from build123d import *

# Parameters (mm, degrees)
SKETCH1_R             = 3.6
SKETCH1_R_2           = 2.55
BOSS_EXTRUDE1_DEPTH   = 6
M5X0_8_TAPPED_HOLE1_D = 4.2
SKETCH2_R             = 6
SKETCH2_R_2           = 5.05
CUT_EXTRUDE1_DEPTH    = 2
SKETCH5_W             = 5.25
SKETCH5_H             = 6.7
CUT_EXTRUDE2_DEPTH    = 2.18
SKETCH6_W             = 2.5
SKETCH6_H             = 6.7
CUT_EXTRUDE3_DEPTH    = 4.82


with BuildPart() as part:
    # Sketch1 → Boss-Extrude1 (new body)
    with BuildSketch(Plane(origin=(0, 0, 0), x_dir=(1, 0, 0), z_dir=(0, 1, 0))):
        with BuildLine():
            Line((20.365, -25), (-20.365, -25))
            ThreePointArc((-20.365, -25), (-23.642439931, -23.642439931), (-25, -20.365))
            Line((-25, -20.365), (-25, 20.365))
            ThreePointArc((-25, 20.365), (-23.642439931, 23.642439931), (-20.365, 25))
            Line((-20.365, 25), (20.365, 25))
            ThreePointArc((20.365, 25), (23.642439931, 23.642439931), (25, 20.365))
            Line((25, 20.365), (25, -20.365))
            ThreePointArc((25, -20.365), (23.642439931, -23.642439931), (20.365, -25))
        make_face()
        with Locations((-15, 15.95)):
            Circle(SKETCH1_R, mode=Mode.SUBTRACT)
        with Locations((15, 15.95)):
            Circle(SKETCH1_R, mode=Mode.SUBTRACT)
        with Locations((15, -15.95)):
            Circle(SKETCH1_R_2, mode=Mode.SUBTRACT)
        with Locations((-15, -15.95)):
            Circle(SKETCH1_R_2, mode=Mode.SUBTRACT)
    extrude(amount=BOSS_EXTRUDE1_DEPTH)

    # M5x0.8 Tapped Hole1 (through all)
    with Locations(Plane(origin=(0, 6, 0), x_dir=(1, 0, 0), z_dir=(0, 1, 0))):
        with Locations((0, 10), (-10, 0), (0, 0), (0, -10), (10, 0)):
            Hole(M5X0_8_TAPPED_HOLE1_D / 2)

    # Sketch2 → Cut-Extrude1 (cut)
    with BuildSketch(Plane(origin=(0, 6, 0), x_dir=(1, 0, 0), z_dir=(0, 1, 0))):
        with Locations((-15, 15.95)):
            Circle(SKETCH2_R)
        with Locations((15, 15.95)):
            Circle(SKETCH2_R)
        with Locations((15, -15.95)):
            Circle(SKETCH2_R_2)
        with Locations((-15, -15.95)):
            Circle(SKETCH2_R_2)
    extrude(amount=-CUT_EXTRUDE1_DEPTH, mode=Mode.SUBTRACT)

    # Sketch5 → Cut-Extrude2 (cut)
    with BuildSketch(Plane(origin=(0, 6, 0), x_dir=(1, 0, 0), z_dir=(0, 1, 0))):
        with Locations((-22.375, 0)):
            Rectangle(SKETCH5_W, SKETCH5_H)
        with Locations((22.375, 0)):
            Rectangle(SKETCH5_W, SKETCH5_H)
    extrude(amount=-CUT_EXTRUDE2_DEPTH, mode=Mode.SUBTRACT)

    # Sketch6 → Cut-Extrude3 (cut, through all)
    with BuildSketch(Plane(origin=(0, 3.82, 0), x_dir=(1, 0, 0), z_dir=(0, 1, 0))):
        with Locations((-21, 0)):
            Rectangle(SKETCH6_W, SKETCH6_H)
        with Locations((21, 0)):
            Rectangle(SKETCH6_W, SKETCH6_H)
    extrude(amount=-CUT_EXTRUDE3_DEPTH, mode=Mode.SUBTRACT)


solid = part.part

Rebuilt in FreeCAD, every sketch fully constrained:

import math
import FreeCAD as App
import Part
import Sketcher
Q = App.Units.Quantity

doc = App.newDocument("Part")
body = doc.addObject("PartDesign::Body", "Body")

sketch1 = body.newObject("Sketcher::SketchObject", "Sketch")
sketch1.AttachmentSupport = (doc.getObject("XZ_Plane"), [""])
sketch1.MapMode = "FlatFace"
sketch1.addGeometry([
    Part.LineSegment(App.Vector(-20.4, 25, 0), App.Vector(20.4, 25, 0)),
    Part.ArcOfCircle(Part.Circle(App.Vector(20.4, 20.4, 0), App.Vector(0, 0, 1), 4.6), math.radians(0), math.radians(90)),
    Part.LineSegment(App.Vector(25, 20.4, 0), App.Vector(25, -20.4, 0)),
    Part.ArcOfCircle(Part.Circle(App.Vector(20.4, -20.4, 0), App.Vector(0, 0, 1), 4.6), math.radians(-90), math.radians(0)),
    Part.LineSegment(App.Vector(20.4, -25, 0), App.Vector(-20.4, -25, 0)),
    Part.ArcOfCircle(Part.Circle(App.Vector(-20.4, -20.4, 0), App.Vector(0, 0, 1), 4.6), math.radians(180), math.radians(270)),
    Part.LineSegment(App.Vector(-25, -20.4, 0), App.Vector(-25, 20.4, 0)),
    Part.ArcOfCircle(Part.Circle(App.Vector(-20.4, 20.4, 0), App.Vector(0, 0, 1), 4.6), math.radians(90), math.radians(180)),
    Part.Circle(App.Vector(15, 15.9, 0), App.Vector(0, 0, 1), 2.5),
    Part.Circle(App.Vector(-15, 15.9, 0), App.Vector(0, 0, 1), 2.5),
    Part.Circle(App.Vector(15, -15.9, 0), App.Vector(0, 0, 1), 3.6),
    Part.Circle(App.Vector(-15, -15.9, 0), App.Vector(0, 0, 1), 3.6),
], False)
sketch1.addConstraint([
    Sketcher.Constraint("Tangent", 0, 2, 1, 2),
    Sketcher.Constraint("Tangent", 1, 1, 2, 1),
    Sketcher.Constraint("Tangent", 2, 2, 3, 2),
    Sketcher.Constraint("Tangent", 3, 1, 4, 1),
    Sketcher.Constraint("Tangent", 4, 2, 5, 2),
    Sketcher.Constraint("Tangent", 5, 1, 6, 1),
    Sketcher.Constraint("Tangent", 6, 2, 7, 2),
    Sketcher.Constraint("Tangent", 7, 1, 0, 1),
    Sketcher.Constraint("Horizontal", 0),
    Sketcher.Constraint("Vertical", 2),
    Sketcher.Constraint("Horizontal", 4),
    Sketcher.Constraint("Vertical", 6),
    Sketcher.Constraint("Equal", 1, 3),
    Sketcher.Constraint("Equal", 3, 5),
    Sketcher.Constraint("Equal", 5, 7),
    Sketcher.Constraint("Equal", 8, 9),
    Sketcher.Constraint("Equal", 10, 11),
    Sketcher.Constraint("Symmetric", 1, 3, 5, 3, -1, 1),
    Sketcher.Constraint("Symmetric", 9, 3, 10, 3, -1, 1),
    Sketcher.Constraint("Symmetric", 8, 3, 11, 3, -1, 1),
    Sketcher.Constraint("Symmetric", 8, 3, 9, 3, -2),
    Sketcher.Constraint("Equal", 4, 2),
    Sketcher.Constraint("Diameter", 8, Q("5.1 mm")),
    Sketcher.Constraint("Diameter", 10, Q("7.2 mm")),
    Sketcher.Constraint("DistanceX", -1, 1, 8, 3, Q("15 mm")),
    Sketcher.Constraint("DistanceY", -1, 1, 0, 2, Q("25 mm")),
    Sketcher.Constraint("Radius", 1, Q("4.635 mm")),
    Sketcher.Constraint("DistanceY", 10, 3, 8, 3, Q("31.9 mm")),
])
pad1 = body.newObject("PartDesign::Pad", "Pad")
pad1.Profile = sketch1
pad1.Length = 6
pad1.Reversed = True

sketch2 = body.newObject("Sketcher::SketchObject", "Sketch001")
sketch2.AttachmentSupport = (doc.getObject("XZ_Plane"), [""])
sketch2.MapMode = "FlatFace"
sketch2.AttachmentOffset = App.Placement(App.Vector(0, 0, -6), App.Rotation())
sketch2.addGeometry([
    Part.Circle(App.Vector(0, -10, 0), App.Vector(0, 0, 1), 2.1),
    Part.Circle(App.Vector(-10, 0, 0), App.Vector(0, 0, 1), 2.1),
    Part.Circle(App.Vector(0, 0, 0), App.Vector(0, 0, 1), 2.1),
    Part.Circle(App.Vector(0, 10, 0), App.Vector(0, 0, 1), 2.1),
    Part.Circle(App.Vector(10, 0, 0), App.Vector(0, 0, 1), 2.1),
], False)
sketch2.addConstraint([
    Sketcher.Constraint("Coincident", 2, 3, -1, 1),
    Sketcher.Constraint("Equal", 0, 1),
    Sketcher.Constraint("Equal", 1, 2),
    Sketcher.Constraint("Equal", 2, 3),
    Sketcher.Constraint("Equal", 3, 4),
    Sketcher.Constraint("Symmetric", 0, 3, 3, 3, -1, 1),
    Sketcher.Constraint("Symmetric", 1, 3, 4, 3, -1, 1),
    Sketcher.Constraint("PointOnObject", 0, 3, -2),
    Sketcher.Constraint("PointOnObject", 1, 3, -1),
    Sketcher.Constraint("Diameter", 0, Q("4.2 mm")),
    Sketcher.Constraint("DistanceY", 0, 3, -1, 1, Q("10 mm")),
    Sketcher.Constraint("DistanceX", 1, 3, -1, 1, Q("10 mm")),
])
doc.recompute()
hole = body.newObject("PartDesign::Hole", "Hole")
hole.Profile = sketch2
hole.ThreadType = "None"
hole.Diameter = 4.2
hole.DepthType = "ThroughAll"
hole.Reversed = True

sketch3 = body.newObject("Sketcher::SketchObject", "Sketch002")
sketch3.AttachmentSupport = (doc.getObject("XZ_Plane"), [""])
sketch3.MapMode = "FlatFace"
sketch3.AttachmentOffset = App.Placement(App.Vector(0, 0, -6), App.Rotation())
sketch3.addGeometry([
    Part.Circle(App.Vector(-15, -16, 0), App.Vector(0, 0, 1), 6),
    Part.Circle(App.Vector(15, -16, 0), App.Vector(0, 0, 1), 6),
    Part.Circle(App.Vector(15, 16, 0), App.Vector(0, 0, 1), 5),
    Part.Circle(App.Vector(-15, 16, 0), App.Vector(0, 0, 1), 5),
], False)
sketch3.addConstraint([
    Sketcher.Constraint("Equal", 0, 1),
    Sketcher.Constraint("Equal", 2, 3),
    Sketcher.Constraint("Symmetric", 0, 3, 2, 3, -1, 1),
    Sketcher.Constraint("Symmetric", 1, 3, 3, 3, -1, 1),
    Sketcher.Constraint("Symmetric", 0, 3, 1, 3, -2),
    Sketcher.Constraint("Diameter", 0, Q("12 mm")),
    Sketcher.Constraint("Diameter", 2, Q("10.1 mm")),
    Sketcher.Constraint("DistanceX", 0, 3, -1, 1, Q("15 mm")),
    Sketcher.Constraint("DistanceY", 1, 3, 2, 3, Q("31.9 mm")),
])
pocket1 = body.newObject("PartDesign::Pocket", "Pocket")
pocket1.Profile = sketch3
pocket1.Length = 2
pocket1.Reversed = True

sketch4 = body.newObject("Sketcher::SketchObject", "Sketch003")
sketch4.AttachmentSupport = (doc.getObject("XZ_Plane"), [""])
sketch4.MapMode = "FlatFace"
sketch4.AttachmentOffset = App.Placement(App.Vector(0, 0, -6), App.Rotation())
sketch4.addGeometry([
    Part.LineSegment(App.Vector(-25, -3, 0), App.Vector(-25, 3, 0)),
    Part.LineSegment(App.Vector(-25, 3, 0), App.Vector(-20, 3, 0)),
    Part.LineSegment(App.Vector(-20, 3, 0), App.Vector(-20, -3, 0)),
    Part.LineSegment(App.Vector(-20, -3, 0), App.Vector(-25, -3, 0)),
    Part.LineSegment(App.Vector(20, -3, 0), App.Vector(20, 3, 0)),
    Part.LineSegment(App.Vector(20, 3, 0), App.Vector(25, 3, 0)),
    Part.LineSegment(App.Vector(25, 3, 0), App.Vector(25, -3, 0)),
    Part.LineSegment(App.Vector(25, -3, 0), App.Vector(20, -3, 0)),
], False)
sketch4.addConstraint([
    Sketcher.Constraint("Coincident", 0, 2, 1, 1),
    Sketcher.Constraint("Coincident", 1, 2, 2, 1),
    Sketcher.Constraint("Coincident", 2, 2, 3, 1),
    Sketcher.Constraint("Coincident", 3, 2, 0, 1),
    Sketcher.Constraint("Coincident", 4, 2, 5, 1),
    Sketcher.Constraint("Coincident", 5, 2, 6, 1),
    Sketcher.Constraint("Coincident", 6, 2, 7, 1),
    Sketcher.Constraint("Coincident", 7, 2, 4, 1),
    Sketcher.Constraint("Vertical", 0),
    Sketcher.Constraint("Horizontal", 1),
    Sketcher.Constraint("Vertical", 2),
    Sketcher.Constraint("Horizontal", 3),
    Sketcher.Constraint("Vertical", 4),
    Sketcher.Constraint("Horizontal", 5),
    Sketcher.Constraint("Vertical", 6),
    Sketcher.Constraint("Horizontal", 7),
    Sketcher.Constraint("Symmetric", 2, 2, 4, 2, -1, 1),
    Sketcher.Constraint("Symmetric", 0, 2, 6, 2, -1, 1),
    Sketcher.Constraint("Horizontal", 1, 2, 4, 2),
    Sketcher.Constraint("DistanceY", 0, 1, 0, 2, Q("6.7 mm")),
    Sketcher.Constraint("DistanceX", 0, 2, -1, 1, Q("25 mm")),
    Sketcher.Constraint("DistanceX", 1, 1, 1, 2, Q("5.25 mm")),
])
pocket2 = body.newObject("PartDesign::Pocket", "Pocket001")
pocket2.Profile = sketch4
pocket2.Length = 2.18
pocket2.Reversed = True

sketch5 = body.newObject("Sketcher::SketchObject", "Sketch004")
sketch5.AttachmentSupport = (doc.getObject("XZ_Plane"), [""])
sketch5.MapMode = "FlatFace"
sketch5.AttachmentOffset = App.Placement(App.Vector(0, 0, -3.82), App.Rotation())
sketch5.addGeometry([
    Part.LineSegment(App.Vector(-22.2, -3.4, 0), App.Vector(-22.2, 3.4, 0)),
    Part.LineSegment(App.Vector(-22.2, 3.4, 0), App.Vector(-19.8, 3.4, 0)),
    Part.LineSegment(App.Vector(-19.8, 3.4, 0), App.Vector(-19.8, -3.4, 0)),
    Part.LineSegment(App.Vector(-19.8, -3.4, 0), App.Vector(-22.2, -3.4, 0)),
    Part.LineSegment(App.Vector(19.8, -3.4, 0), App.Vector(19.8, 3.4, 0)),
    Part.LineSegment(App.Vector(19.8, 3.4, 0), App.Vector(22.2, 3.4, 0)),
    Part.LineSegment(App.Vector(22.2, 3.4, 0), App.Vector(22.2, -3.4, 0)),
    Part.LineSegment(App.Vector(22.2, -3.4, 0), App.Vector(19.8, -3.4, 0)),
], False)
sketch5.addConstraint([
    Sketcher.Constraint("Coincident", 0, 2, 1, 1),
    Sketcher.Constraint("Coincident", 1, 2, 2, 1),
    Sketcher.Constraint("Coincident", 2, 2, 3, 1),
    Sketcher.Constraint("Coincident", 3, 2, 0, 1),
    Sketcher.Constraint("Coincident", 4, 2, 5, 1),
    Sketcher.Constraint("Coincident", 5, 2, 6, 1),
    Sketcher.Constraint("Coincident", 6, 2, 7, 1),
    Sketcher.Constraint("Coincident", 7, 2, 4, 1),
    Sketcher.Constraint("Vertical", 0),
    Sketcher.Constraint("Horizontal", 1),
    Sketcher.Constraint("Vertical", 2),
    Sketcher.Constraint("Horizontal", 3),
    Sketcher.Constraint("Vertical", 4),
    Sketcher.Constraint("Horizontal", 5),
    Sketcher.Constraint("Vertical", 6),
    Sketcher.Constraint("Horizontal", 7),
    Sketcher.Constraint("Symmetric", 2, 2, 4, 2, -1, 1),
    Sketcher.Constraint("Symmetric", 0, 2, 6, 2, -1, 1),
    Sketcher.Constraint("Horizontal", 1, 2, 4, 2),
    Sketcher.Constraint("DistanceX", 1, 1, 1, 2, Q("2.5 mm")),
    Sketcher.Constraint("DistanceY", 0, 1, 0, 2, Q("6.7 mm")),
    Sketcher.Constraint("DistanceX", 0, 2, 4, 2, Q("42 mm")),
])
pocket3 = body.newObject("PartDesign::Pocket", "Pocket002")
pocket3.Profile = sketch5
pocket3.Type = "ThroughAll"
pocket3.Reversed = True

doc.recompute()
